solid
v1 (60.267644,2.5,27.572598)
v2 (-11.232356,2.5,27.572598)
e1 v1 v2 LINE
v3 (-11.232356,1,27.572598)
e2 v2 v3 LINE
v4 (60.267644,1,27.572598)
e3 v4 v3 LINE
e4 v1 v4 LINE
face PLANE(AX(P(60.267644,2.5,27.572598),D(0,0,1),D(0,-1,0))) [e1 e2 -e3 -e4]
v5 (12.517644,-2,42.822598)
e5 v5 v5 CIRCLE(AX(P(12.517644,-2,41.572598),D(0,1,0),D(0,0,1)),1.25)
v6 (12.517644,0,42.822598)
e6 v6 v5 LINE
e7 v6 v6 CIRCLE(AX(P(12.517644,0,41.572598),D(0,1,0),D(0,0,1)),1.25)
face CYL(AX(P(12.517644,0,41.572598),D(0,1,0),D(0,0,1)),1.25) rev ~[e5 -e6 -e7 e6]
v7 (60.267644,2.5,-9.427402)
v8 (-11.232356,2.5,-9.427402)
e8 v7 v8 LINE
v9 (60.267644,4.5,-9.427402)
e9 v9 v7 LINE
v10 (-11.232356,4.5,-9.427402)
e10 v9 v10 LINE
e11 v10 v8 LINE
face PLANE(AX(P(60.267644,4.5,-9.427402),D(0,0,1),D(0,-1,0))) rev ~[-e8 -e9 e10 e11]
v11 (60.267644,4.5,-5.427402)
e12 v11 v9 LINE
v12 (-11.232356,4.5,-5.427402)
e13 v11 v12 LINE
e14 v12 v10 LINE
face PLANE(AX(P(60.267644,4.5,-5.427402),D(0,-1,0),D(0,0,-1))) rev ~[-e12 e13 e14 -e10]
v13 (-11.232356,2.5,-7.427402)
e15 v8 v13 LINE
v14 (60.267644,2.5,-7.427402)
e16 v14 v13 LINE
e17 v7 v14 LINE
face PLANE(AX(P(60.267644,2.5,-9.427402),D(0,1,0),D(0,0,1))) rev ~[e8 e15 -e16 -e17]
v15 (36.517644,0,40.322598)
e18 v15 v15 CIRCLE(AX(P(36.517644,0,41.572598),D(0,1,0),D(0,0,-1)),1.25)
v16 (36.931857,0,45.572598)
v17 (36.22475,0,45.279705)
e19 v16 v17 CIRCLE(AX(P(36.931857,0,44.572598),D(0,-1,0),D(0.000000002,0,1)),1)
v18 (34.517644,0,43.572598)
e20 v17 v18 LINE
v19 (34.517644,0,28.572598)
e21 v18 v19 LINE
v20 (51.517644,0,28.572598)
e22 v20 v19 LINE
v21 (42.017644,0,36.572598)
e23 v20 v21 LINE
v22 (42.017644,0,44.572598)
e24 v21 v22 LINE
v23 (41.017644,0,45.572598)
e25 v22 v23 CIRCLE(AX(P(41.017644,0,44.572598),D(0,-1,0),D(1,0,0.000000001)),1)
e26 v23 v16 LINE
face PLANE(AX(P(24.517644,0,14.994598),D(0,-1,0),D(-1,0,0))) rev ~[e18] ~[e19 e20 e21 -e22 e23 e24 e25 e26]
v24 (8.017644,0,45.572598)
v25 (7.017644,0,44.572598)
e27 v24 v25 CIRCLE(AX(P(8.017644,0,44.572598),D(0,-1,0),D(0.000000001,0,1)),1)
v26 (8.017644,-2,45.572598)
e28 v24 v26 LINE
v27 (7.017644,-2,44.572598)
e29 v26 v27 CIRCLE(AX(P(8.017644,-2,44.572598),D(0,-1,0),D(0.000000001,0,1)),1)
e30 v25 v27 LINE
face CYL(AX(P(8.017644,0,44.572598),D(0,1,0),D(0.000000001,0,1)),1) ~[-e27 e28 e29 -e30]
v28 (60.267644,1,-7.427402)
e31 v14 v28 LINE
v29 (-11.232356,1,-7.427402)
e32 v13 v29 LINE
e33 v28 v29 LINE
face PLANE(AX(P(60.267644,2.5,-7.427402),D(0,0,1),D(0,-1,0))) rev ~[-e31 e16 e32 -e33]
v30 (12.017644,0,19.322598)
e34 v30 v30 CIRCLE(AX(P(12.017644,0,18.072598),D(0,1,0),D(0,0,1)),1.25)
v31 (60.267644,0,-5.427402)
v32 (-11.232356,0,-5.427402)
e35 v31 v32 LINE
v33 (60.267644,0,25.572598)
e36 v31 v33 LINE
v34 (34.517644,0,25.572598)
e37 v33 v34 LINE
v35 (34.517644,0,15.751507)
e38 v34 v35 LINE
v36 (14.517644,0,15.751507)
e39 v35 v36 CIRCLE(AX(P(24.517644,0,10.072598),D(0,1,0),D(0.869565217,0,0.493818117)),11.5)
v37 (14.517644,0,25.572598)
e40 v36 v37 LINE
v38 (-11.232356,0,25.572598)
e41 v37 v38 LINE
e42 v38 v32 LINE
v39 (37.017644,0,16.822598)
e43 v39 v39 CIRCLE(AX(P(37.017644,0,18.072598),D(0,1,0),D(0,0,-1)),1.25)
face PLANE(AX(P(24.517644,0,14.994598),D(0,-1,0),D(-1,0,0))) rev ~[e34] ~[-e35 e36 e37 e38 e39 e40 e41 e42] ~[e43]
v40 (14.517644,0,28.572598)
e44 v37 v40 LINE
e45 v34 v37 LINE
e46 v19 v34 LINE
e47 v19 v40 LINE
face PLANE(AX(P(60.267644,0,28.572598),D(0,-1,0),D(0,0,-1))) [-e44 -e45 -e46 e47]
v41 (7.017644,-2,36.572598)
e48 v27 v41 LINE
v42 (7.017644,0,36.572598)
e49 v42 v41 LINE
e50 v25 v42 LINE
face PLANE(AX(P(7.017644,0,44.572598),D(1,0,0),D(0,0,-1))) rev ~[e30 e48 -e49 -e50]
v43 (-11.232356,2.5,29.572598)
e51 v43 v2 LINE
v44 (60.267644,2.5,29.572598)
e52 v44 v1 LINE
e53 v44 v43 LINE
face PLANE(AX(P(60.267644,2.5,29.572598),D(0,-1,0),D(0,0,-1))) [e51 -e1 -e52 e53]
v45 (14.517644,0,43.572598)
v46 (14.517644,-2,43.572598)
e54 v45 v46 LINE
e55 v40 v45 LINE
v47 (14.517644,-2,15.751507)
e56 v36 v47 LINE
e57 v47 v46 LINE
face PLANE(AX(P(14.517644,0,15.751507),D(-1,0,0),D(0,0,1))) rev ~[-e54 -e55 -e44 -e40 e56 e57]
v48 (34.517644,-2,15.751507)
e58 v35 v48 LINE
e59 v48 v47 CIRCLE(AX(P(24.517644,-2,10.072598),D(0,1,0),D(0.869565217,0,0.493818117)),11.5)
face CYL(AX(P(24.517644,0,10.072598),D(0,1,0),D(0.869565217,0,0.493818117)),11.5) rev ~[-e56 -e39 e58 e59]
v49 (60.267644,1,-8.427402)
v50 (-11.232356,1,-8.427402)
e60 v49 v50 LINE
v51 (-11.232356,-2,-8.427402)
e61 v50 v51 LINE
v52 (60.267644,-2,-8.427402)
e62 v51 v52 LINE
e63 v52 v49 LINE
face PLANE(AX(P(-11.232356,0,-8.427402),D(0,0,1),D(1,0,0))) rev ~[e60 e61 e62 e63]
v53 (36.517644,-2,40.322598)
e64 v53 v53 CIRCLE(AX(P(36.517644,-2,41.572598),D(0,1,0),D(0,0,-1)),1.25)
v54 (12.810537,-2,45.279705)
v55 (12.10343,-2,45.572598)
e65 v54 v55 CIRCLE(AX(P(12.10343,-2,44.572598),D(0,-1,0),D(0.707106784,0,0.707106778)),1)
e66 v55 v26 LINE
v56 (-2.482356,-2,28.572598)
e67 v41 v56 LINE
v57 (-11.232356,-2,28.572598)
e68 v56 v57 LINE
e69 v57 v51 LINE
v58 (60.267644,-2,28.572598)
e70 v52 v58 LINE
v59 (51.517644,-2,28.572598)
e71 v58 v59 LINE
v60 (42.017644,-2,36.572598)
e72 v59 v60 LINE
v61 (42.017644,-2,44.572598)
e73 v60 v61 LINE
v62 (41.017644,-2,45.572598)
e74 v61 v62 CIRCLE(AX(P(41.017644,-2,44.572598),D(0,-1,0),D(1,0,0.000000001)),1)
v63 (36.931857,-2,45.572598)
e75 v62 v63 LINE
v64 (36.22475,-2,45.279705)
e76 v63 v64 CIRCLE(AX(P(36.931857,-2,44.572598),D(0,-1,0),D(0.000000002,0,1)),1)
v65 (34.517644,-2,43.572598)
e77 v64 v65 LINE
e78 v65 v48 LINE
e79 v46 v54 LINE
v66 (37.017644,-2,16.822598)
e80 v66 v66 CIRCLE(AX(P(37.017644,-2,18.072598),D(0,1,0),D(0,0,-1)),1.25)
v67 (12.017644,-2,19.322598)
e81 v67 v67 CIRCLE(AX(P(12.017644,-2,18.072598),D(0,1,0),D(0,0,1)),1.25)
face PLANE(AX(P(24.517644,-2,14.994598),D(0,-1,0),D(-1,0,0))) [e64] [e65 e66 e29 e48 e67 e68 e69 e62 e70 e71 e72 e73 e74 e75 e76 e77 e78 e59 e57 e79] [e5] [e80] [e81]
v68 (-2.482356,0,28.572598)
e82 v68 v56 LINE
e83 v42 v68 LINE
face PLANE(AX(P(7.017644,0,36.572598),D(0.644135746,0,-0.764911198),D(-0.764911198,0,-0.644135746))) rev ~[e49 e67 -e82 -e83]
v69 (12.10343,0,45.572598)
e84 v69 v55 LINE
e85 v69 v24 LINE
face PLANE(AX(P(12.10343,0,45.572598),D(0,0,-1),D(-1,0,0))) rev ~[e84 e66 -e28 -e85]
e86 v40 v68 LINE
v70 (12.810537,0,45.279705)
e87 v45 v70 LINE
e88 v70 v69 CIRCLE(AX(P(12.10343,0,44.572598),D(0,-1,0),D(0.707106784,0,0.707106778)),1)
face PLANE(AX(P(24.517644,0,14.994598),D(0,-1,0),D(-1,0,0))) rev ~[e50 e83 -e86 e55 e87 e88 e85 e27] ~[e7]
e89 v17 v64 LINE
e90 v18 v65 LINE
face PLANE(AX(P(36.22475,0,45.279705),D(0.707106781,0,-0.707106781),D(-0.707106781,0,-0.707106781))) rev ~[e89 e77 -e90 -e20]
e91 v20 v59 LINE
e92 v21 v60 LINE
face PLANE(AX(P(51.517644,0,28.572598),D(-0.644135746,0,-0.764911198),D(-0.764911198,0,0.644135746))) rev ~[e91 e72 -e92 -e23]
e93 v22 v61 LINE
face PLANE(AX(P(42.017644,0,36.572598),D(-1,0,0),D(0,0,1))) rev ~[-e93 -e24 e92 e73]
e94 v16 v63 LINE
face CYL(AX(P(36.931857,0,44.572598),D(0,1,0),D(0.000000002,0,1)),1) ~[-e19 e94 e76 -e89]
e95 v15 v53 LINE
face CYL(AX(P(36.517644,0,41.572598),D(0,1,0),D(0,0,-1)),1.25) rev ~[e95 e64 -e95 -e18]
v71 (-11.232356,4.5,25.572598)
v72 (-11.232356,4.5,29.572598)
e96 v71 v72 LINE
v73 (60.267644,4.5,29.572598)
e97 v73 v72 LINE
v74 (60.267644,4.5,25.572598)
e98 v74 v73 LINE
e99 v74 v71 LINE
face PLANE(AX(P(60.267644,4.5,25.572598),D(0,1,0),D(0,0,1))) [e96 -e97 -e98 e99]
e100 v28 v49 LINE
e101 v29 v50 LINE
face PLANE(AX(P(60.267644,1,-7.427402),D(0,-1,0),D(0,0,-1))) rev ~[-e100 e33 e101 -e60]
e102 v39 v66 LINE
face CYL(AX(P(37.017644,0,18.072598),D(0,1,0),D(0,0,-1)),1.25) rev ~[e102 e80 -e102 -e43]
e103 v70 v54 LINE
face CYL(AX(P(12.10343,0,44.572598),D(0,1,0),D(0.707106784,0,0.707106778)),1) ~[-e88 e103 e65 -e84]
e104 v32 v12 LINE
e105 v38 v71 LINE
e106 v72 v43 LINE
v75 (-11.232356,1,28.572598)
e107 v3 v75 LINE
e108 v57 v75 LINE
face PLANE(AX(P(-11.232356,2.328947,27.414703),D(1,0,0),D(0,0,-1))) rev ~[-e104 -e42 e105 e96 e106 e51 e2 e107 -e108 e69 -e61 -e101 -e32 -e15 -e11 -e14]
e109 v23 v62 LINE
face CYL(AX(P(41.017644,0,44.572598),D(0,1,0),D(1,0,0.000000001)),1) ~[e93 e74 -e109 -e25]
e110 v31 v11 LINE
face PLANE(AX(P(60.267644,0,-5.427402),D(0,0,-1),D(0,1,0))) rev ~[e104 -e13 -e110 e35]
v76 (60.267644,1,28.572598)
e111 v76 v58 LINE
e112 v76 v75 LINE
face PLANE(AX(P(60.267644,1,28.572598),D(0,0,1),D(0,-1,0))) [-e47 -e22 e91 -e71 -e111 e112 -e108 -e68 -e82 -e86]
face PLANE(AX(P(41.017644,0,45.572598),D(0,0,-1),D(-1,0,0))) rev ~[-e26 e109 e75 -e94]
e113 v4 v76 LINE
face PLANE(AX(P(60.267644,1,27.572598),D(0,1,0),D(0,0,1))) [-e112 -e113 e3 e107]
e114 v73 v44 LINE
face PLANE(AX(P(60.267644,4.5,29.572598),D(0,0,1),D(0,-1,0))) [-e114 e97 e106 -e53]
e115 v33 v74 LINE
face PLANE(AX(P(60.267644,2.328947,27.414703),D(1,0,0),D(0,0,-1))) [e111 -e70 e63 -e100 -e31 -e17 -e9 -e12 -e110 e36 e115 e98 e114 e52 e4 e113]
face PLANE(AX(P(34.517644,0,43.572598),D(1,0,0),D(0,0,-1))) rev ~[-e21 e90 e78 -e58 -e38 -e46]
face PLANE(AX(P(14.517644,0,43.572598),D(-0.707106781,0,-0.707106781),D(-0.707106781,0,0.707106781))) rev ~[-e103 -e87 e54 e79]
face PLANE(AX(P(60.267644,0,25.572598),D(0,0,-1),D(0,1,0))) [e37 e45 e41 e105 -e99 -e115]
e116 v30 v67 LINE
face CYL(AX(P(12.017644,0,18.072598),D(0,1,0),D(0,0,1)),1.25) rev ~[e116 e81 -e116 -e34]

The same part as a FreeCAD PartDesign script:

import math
import FreeCAD as App
import Part
import Sketcher

V = App.Vector
Q = App.Units.Quantity

doc = App.newDocument("Part")
body = doc.addObject("PartDesign::Body", "Body")

# Sketch on XZ plane
sketch1 = doc.addObject("Sketcher::SketchObject", "Sketch")
body.addObject(sketch1)
sketch1.AttachmentSupport = (doc.XZ_Plane, [""])
sketch1.MapMode = "FlatFace"
sketch1.addGeometry([
    Part.LineSegment(V(34.517644, 43.572598, 0), V(36.22475, 45.279705, 0)),  # 0
    Part.ArcOfCircle(Part.Circle(V(36.931857, 44.572598, 0), V(0, 0, 1), 1), math.radians(90), math.radians(135)),  # 1
    Part.LineSegment(V(36.931857, 45.572598, 0), V(41.017644, 45.572598, 0)),  # 2
    Part.ArcOfCircle(Part.Circle(V(41.017644, 44.572598, 0), V(0, 0, 1), 1), math.radians(0), math.radians(90)),  # 3
    Part.LineSegment(V(42.017644, 44.572598, 0), V(42.017644, 36.572598, 0)),  # 4
    Part.LineSegment(V(42.017644, 36.572598, 0), V(51.517644, 28.572598, 0)),  # 5
    Part.LineSegment(V(51.517644, 28.572598, 0), V(60.267644, 28.572598, 0)),  # 6
    Part.LineSegment(V(60.267644, 28.572598, 0), V(60.267644, -8.427402, 0)),  # 7
    Part.LineSegment(V(60.267644, -8.427402, 0), V(-11.232356, -8.427402, 0)),  # 8
    Part.LineSegment(V(-11.232356, -8.427402, 0), V(-11.232356, 28.572598, 0)),  # 9
    Part.LineSegment(V(-11.232356, 28.572598, 0), V(-2.482356, 28.572598, 0)),  # 10
    Part.LineSegment(V(-2.482356, 28.572598, 0), V(7.017644, 36.572598, 0)),  # 11
    Part.LineSegment(V(7.017644, 36.572598, 0), V(7.017644, 44.572598, 0)),  # 12
    Part.ArcOfCircle(Part.Circle(V(8.017644, 44.572598, 0), V(0, 0, 1), 1), math.radians(90), math.radians(180)),  # 13
    Part.LineSegment(V(8.017644, 45.572598, 0), V(12.10343, 45.572598, 0)),  # 14
    Part.ArcOfCircle(Part.Circle(V(12.10343, 44.572598, 0), V(0, 0, 1), 1), math.radians(45), math.radians(90)),  # 15
    Part.LineSegment(V(12.810537, 45.279705, 0), V(14.517644, 43.572598, 0)),  # 16
    Part.LineSegment(V(14.517644, 43.572598, 0), V(14.517644, 15.751507, 0)),  # 17
    Part.ArcOfCircle(Part.Circle(V(24.517644, 10.072598, 0), V(0, 0, 1), 11.5), math.radians(150.408154), math.radians(389.591846)),  # 18
    Part.LineSegment(V(34.517644, 15.751507, 0), V(34.517644, 43.572598, 0)),  # 19
    Part.Circle(V(36.517644, 41.572598, 0), V(0, 0, 1), 1.25),  # 20
    Part.Circle(V(12.517644, 41.572598, 0), V(0, 0, 1), 1.25),  # 21
    Part.Circle(V(37.017644, 18.072598, 0), V(0, 0, 1), 1.25),  # 22
    Part.Circle(V(12.017644, 18.072598, 0), V(0, 0, 1), 1.25),  # 23
], False)
sketch1.addConstraint([
    Sketcher.Constraint("Tangent", 0, 2, 1, 2),
    Sketcher.Constraint("Tangent", 1, 1, 2, 1),
    Sketcher.Constraint("Tangent", 2, 2, 3, 2),
    Sketcher.Constraint("Tangent", 3, 1, 4, 1),
    Sketcher.Constraint("Coincident", 4, 2, 5, 1),
    Sketcher.Constraint("Coincident", 5, 2, 6, 1),
    Sketcher.Constraint("Coincident", 6, 2, 7, 1),
    Sketcher.Constraint("Coincident", 7, 2, 8, 1),
    Sketcher.Constraint("Coincident", 8, 2, 9, 1),
    Sketcher.Constraint("Coincident", 9, 2, 10, 1),
    Sketcher.Constraint("Coincident", 10, 2, 11, 1),
    Sketcher.Constraint("Coincident", 11, 2, 12, 1),
    Sketcher.Constraint("Tangent", 12, 2, 13, 2),
    Sketcher.Constraint("Tangent", 13, 1, 14, 1),
    Sketcher.Constraint("Tangent", 14, 2, 15, 2),
    Sketcher.Constraint("Tangent", 15, 1, 16, 1),
    Sketcher.Constraint("Coincident", 16, 2, 17, 1),
    Sketcher.Constraint("Coincident", 17, 2, 18, 1),
    Sketcher.Constraint("Coincident", 18, 2, 19, 1),
    Sketcher.Constraint("Coincident", 19, 2, 0, 1),
    Sketcher.Constraint("Horizontal", 2),
    Sketcher.Constraint("Vertical", 4),
    Sketcher.Constraint("Horizontal", 6),
    Sketcher.Constraint("Vertical", 7),
    Sketcher.Constraint("Horizontal", 8),
    Sketcher.Constraint("Vertical", 9),
    Sketcher.Constraint("Horizontal", 10),
    Sketcher.Constraint("Vertical", 12),
    Sketcher.Constraint("Horizontal", 14),
    Sketcher.Constraint("Vertical", 17),
    Sketcher.Constraint("Vertical", 19),
    Sketcher.Constraint("Equal", 1, 3),
    Sketcher.Constraint("Equal", 3, 13),
    Sketcher.Constraint("Equal", 13, 15),
    Sketcher.Constraint("Equal", 20, 21),
    Sketcher.Constraint("Equal", 21, 22),
    Sketcher.Constraint("Equal", 22, 23),
    Sketcher.Constraint("Perpendicular", 0, 16),
    Sketcher.Constraint("Horizontal", 3, 3, 13, 3),
    Sketcher.Constraint("Horizontal", 20, 3, 21, 3),
    Sketcher.Constraint("Horizontal", 22, 3, 23, 3),
    Sketcher.Constraint("Horizontal", 6, 2, 9, 2),
    Sketcher.Constraint("Horizontal", 4, 2, 11, 2),
    Sketcher.Constraint("Horizontal", 0, 2, 15, 1),
    Sketcher.Constraint("Horizontal", 17, 2, 18, 2),
    Sketcher.Constraint("Horizontal", 16, 2, 19, 2),
    Sketcher.Constraint("Equal", 6, 10),
    Sketcher.Constraint("Equal", 2, 14),
    Sketcher.Constraint("Equal", 5, 11),
    Sketcher.Constraint("Radius", 1, Q("1 mm")),
    Sketcher.Constraint("Diameter", 20, Q("2.5 mm")),
    Sketcher.Constraint("Radius", 18, Q("11.5 mm")),
    Sketcher.Constraint("DistanceY", 4, 2, 4, 1, Q("8 mm")),
    Sketcher.Constraint("DistanceY", 7, 2, 7, 1, Q("37 mm")),
    Sketcher.Constraint("DistanceX", 8, 2, 8, 1, Q("71.5 mm")),
    Sketcher.Constraint("DistanceX", 13, 3, 3, 3, Q("33 mm")),
    Sketcher.Constraint("DistanceY", 20, 3, 1, 3, Q("3 mm")),
    Sketcher.Constraint("DistanceX", 18, 3, 20, 3, Q("12 mm")),
    Sketcher.Constraint("DistanceX", 21, 3, 20, 3, Q("24 mm")),
    Sketcher.Constraint("DistanceY", 18, 3, 22, 3, Q("8 mm")),
    Sketcher.Constraint("DistanceX", 22, 3, 3, 3, Q("4 mm")),
    Sketcher.Constraint("DistanceX", 23, 3, 22, 3, Q("25 mm")),
    Sketcher.Constraint("DistanceY", 5, 2, 4, 2, Q("8 mm")),
    Sketcher.Constraint("DistanceX", 20, 3, 5, 2, Q("15 mm")),
    Sketcher.Constraint("DistanceY", 16, 2, 15, 3, Q("1 mm")),
    Sketcher.Constraint("DistanceX", 21, 3, 16, 2, Q("2 mm")),
    Sketcher.Constraint("DistanceY", 18, 3, 1, 3, Q("34.5 mm")),
    Sketcher.Constraint("DistanceY", -1, 1, 1, 3, Q("44.572598 mm")),
    Sketcher.Constraint("DistanceX", -1, 1, 15, 3, Q("12.10343 mm")),
])
pad1 = doc.addObject("PartDesign::Pad", "Pad")
body.addObject(pad1)
pad1.Profile = sketch1
pad1.Length = 2

# Sketch on YZ plane
sketch2 = doc.addObject("Sketcher::SketchObject", "Sketch001")
body.addObject(sketch2)
sketch2.AttachmentSupport = (doc.YZ_Plane, [""])
sketch2.MapMode = "FlatFace"
sketch2.AttachmentOffset = App.Placement(V(0, 0, 60.267644), App.Rotation())
sketch2.addGeometry([
    Part.LineSegment(V(0, 25.572598, 0), V(4.5, 25.572598, 0)),  # 0
    Part.LineSegment(V(4.5, 25.572598, 0), V(4.5, 29.572598, 0)),  # 1
    Part.LineSegment(V(4.5, 29.572598, 0), V(2.5, 29.572598, 0)),  # 2
    Part.LineSegment(V(2.5, 29.572598, 0), V(2.5, 27.572598, 0)),  # 3
    Part.LineSegment(V(2.5, 27.572598, 0), V(1, 27.572598, 0)),  # 4
    Part.LineSegment(V(1, 27.572598, 0), V(1, 28.572598, 0)),  # 5
    Part.LineSegment(V(1, 28.572598, 0), V(0, 28.572598, 0)),  # 6
    Part.LineSegment(V(0, 28.572598, 0), V(0, 25.572598, 0)),  # 7
    Part.LineSegment(V(4.5, -9.427402, 0), V(4.5, -5.427402, 0)),  # 8
    Part.LineSegment(V(4.5, -5.427402, 0), V(0, -5.427402, 0)),  # 9
    Part.LineSegment(V(0, -5.427402, 0), V(0, -8.427402, 0)),  # 10
    Part.LineSegment(V(0, -8.427402, 0), V(1, -8.427402, 0)),  # 11
    Part.LineSegment(V(1, -8.427402, 0), V(1, -7.427402, 0)),  # 12
    Part.LineSegment(V(1, -7.427402, 0), V(2.5, -7.427402, 0)),  # 13
    Part.LineSegment(V(2.5, -7.427402, 0), V(2.5, -9.427402, 0)),  # 14
    Part.LineSegment(V(2.5, -9.427402, 0), V(4.5, -9.427402, 0)),  # 15
], False)
sketch2.addConstraint([
    Sketcher.Constraint("Coincident", 0, 2, 1, 1),
    Sketcher.Constraint("Coincident", 1, 2, 2, 1),
    Sketcher.Constraint("Coincident", 2, 2, 3, 1),
    Sketcher.Constraint("Coincident", 3, 2, 4, 1),
    Sketcher.Constraint("Coincident", 4, 2, 5, 1),
    Sketcher.Constraint("Coincident", 5, 2, 6, 1),
    Sketcher.Constraint("Coincident", 6, 2, 7, 1),
    Sketcher.Constraint("Coincident", 7, 2, 0, 1),
    Sketcher.Constraint("Coincident", 8, 2, 9, 1),
    Sketcher.Constraint("Coincident", 9, 2, 10, 1),
    Sketcher.Constraint("Coincident", 10, 2, 11, 1),
    Sketcher.Constraint("Coincident", 11, 2, 12, 1),
    Sketcher.Constraint("Coincident", 12, 2, 13, 1),
    Sketcher.Constraint("Coincident", 13, 2, 14, 1),
    Sketcher.Constraint("Coincident", 14, 2, 15, 1),
    Sketcher.Constraint("Coincident", 15, 2, 8, 1),
    Sketcher.Constraint("Horizontal", 0),
    Sketcher.Constraint("Vertical", 1),
    Sketcher.Constraint("Horizontal", 2),
    Sketcher.Constraint("Vertical", 3),
    Sketcher.Constraint("Horizontal", 4),
    Sketcher.Constraint("Vertical", 5),
    Sketcher.Constraint("Horizontal", 6),
    Sketcher.Constraint("Vertical", 7),
    Sketcher.Constraint("Vertical", 8),
    Sketcher.Constraint("Horizontal", 9),
    Sketcher.Constraint("Vertical", 10),
    Sketcher.Constraint("Horizontal", 11),
    Sketcher.Constraint("Vertical", 12),
    Sketcher.Constraint("Horizontal", 13),
    Sketcher.Constraint("Vertical", 14),
    Sketcher.Constraint("Horizontal", 15),
    Sketcher.Constraint("PointOnObject", 6, 2, -2),
    Sketcher.Constraint("PointOnObject", 9, 2, -2),
    Sketcher.Constraint("Vertical", 1, 2, 8, 2),
    Sketcher.Constraint("Vertical", 5, 2, 11, 2),
    Sketcher.Constraint("Vertical", 3, 2, 13, 2),
    Sketcher.Constraint("Equal", 15, 3),
    Sketcher.Constraint("Equal", 11, 5),
    Sketcher.Constraint("Equal", 1, 8),
    Sketcher.Constraint("Equal", 7, 10),
    Sketcher.Constraint("Equal", 5, 12),
    Sketcher.Constraint("DistanceX", 2, 2, 2, 1, Q("2 mm")),
    Sketcher.Constraint("DistanceX", 6, 2, 6, 1, Q("1 mm")),
    Sketcher.Constraint("DistanceY", 1, 1, 1, 2, Q("4 mm")),
    Sketcher.Constraint("DistanceX", 0, 1, 0, 2, Q("4.5 mm")),
    Sketcher.Constraint("DistanceY", 8, 2, 0, 2, Q("31 mm")),
    Sketcher.Constraint("DistanceY", -1, 1, 0, 2, Q("25.572598 mm")),
])
pad2 = doc.addObject("PartDesign::Pad", "Pad001")
body.addObject(pad2)
pad2.Profile = sketch2
pad2.Length = 71.5
pad2.Reversed = True

doc.recompute()
